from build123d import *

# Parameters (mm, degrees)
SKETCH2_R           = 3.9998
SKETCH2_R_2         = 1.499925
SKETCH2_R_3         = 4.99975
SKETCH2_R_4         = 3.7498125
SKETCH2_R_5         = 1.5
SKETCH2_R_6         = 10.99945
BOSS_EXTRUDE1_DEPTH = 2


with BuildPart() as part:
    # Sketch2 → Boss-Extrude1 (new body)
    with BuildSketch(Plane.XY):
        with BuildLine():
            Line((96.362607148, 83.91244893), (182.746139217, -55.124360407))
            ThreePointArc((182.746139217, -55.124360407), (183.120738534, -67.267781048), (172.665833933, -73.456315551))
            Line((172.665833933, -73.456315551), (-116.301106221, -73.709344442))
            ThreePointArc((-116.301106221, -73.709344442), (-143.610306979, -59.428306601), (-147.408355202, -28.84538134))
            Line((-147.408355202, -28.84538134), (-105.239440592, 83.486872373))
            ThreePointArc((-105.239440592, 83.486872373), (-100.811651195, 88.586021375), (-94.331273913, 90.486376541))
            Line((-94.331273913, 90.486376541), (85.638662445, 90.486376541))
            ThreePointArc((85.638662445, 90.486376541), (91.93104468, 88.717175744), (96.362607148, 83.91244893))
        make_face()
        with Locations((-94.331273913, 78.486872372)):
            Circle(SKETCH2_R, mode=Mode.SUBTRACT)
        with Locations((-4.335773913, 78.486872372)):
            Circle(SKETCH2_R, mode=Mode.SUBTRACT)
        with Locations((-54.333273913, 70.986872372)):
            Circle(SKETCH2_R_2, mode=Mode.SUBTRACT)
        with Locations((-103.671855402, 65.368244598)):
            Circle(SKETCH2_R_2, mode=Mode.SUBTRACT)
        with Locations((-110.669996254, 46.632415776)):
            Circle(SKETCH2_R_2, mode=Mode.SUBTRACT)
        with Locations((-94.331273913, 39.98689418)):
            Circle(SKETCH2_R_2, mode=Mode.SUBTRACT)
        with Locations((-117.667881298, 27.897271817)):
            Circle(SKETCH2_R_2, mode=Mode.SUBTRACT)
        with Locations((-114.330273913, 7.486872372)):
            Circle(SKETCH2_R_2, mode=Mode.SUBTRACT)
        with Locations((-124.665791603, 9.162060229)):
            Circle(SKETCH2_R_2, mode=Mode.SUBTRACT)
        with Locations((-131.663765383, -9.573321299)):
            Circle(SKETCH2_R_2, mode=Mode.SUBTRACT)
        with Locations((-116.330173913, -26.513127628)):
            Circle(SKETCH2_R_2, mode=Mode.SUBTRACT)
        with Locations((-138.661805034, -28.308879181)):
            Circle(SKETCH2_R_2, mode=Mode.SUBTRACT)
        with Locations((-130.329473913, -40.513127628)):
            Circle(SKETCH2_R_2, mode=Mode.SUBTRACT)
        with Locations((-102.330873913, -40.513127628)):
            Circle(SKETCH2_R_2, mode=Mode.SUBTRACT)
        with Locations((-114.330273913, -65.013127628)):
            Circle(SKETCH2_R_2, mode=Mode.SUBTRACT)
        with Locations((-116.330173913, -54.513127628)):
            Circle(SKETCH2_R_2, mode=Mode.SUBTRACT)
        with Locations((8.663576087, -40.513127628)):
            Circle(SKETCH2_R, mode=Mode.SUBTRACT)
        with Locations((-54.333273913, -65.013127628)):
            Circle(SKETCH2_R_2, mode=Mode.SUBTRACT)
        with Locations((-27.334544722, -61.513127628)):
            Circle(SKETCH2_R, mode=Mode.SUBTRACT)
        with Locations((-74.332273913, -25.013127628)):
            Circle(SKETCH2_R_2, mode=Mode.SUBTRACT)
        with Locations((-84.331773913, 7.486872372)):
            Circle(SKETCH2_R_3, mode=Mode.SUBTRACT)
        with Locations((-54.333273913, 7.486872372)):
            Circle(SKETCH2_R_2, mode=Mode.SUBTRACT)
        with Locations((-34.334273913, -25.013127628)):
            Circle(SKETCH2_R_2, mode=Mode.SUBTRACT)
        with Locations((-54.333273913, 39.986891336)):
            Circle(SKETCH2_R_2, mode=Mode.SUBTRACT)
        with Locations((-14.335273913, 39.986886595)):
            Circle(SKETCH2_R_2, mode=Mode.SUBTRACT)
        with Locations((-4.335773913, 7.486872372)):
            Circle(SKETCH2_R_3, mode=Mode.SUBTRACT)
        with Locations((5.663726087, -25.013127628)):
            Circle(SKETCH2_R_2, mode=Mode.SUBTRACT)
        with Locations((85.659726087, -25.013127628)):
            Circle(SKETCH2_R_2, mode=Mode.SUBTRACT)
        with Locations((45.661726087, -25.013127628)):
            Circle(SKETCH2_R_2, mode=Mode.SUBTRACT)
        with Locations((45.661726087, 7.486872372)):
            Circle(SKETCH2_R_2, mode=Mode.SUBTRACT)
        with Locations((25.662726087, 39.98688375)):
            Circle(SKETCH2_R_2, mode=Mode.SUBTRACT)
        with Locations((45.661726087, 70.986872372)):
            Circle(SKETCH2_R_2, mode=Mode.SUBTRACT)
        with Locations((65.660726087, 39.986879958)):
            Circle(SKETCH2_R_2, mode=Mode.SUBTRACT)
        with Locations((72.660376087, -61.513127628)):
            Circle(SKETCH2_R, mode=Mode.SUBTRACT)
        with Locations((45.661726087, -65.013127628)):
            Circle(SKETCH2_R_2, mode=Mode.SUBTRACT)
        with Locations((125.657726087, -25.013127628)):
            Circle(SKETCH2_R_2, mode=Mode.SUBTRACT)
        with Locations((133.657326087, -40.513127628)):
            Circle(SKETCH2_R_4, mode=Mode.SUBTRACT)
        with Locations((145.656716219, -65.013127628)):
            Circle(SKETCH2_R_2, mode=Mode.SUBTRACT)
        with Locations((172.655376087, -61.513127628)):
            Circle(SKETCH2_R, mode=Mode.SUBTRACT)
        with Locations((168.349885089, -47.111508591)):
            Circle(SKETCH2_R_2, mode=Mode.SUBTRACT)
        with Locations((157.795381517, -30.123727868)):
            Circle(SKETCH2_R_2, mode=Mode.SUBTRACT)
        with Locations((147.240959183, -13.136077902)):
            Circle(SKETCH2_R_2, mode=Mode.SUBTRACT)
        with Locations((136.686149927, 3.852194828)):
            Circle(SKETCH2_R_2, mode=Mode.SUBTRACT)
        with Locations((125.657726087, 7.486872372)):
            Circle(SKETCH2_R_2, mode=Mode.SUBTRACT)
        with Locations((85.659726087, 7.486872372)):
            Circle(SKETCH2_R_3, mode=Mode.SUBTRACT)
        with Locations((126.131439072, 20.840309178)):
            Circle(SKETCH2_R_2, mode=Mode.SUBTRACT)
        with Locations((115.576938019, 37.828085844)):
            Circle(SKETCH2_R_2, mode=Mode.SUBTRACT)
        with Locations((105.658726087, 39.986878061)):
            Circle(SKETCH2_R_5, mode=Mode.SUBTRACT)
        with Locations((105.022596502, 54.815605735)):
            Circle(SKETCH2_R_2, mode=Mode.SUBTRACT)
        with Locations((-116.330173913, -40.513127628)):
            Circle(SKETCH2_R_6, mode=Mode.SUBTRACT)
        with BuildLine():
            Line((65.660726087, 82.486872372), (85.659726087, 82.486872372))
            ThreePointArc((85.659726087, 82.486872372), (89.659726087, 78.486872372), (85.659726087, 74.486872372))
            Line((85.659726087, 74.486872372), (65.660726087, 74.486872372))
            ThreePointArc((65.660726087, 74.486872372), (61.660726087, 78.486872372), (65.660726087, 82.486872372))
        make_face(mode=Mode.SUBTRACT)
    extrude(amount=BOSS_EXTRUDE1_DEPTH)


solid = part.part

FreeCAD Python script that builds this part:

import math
import FreeCAD as App
import Part
import Sketcher

V = App.Vector
Q = App.Units.Quantity

doc = App.newDocument("Part")
params = doc.addObject("Spreadsheet::Sheet", "Params")
for row, (alias, value) in enumerate([
    ("sketch1_diameter", "3 mm"),
    ("sketch1_radius", "4 mm"),
    ("pad1_length", "2 mm"),
], start=1):
    params.set(f"A{row}", alias)
    params.set(f"B{row}", "=" + value)
    params.setAlias(f"B{row}", alias)

body = doc.addObject("PartDesign::Body", "Body")

# Sketch on XY plane
sketch1 = body.newObject("Sketcher::SketchObject", "Sketch")
sketch1.AttachmentSupport = (doc.getObject("XY_Plane"), [""])
sketch1.MapMode = "FlatFace"
sketch1.addGeometry([
    Part.LineSegment(V(182.7, -55.1, 0), V(96.4, 83.9, 0)),  # 0
    Part.ArcOfCircle(Part.Circle(V(85.7, 78.5, 0), V(0, 0, 1), 12), math.radians(27), math.radians(90)),  # 1
    Part.LineSegment(V(85.6, 90.5, 0), V(-94.3, 90.5, 0)),  # 2
    Part.ArcOfCircle(Part.Circle(V(-94.3, 78.5, 0), V(0, 0, 1), 12), math.radians(90), math.radians(155)),  # 3
    Part.LineSegment(V(-105.2, 83.5, 0), V(-147.4, -28.8, 0)),  # 4
    Part.ArcOfCircle(Part.Circle(V(-116.3, -40.5, 0), V(0, 0, 1), 33.2), math.radians(159), math.radians(270)),  # 5
    Part.LineSegment(V(-116.3, -73.7, 0), V(172.7, -73.5, 0)),  # 6
    Part.ArcOfCircle(Part.Circle(V(172.7, -61.5, 0), V(0, 0, 1), 11.9), math.radians(-90), math.radians(32)),  # 7
    Part.Circle(V(172.7, -61.5, 0), V(0, 0, 1), 4),  # 8
    Part.Circle(V(145.7, -65, 0), V(0, 0, 1), 1.5),  # 9
    Part.Circle(V(168.3, -47.1, 0), V(0, 0, 1), 1.5),  # 10
    Part.Circle(V(157.8, -30.1, 0), V(0, 0, 1), 1.5),  # 11
    Part.Circle(V(133.7, -40.5, 0), V(0, 0, 1), 3.7),  # 12
    Part.Circle(V(72.7, -61.5, 0), V(0, 0, 1), 4),  # 13
    Part.Circle(V(45.7, -65, 0), V(0, 0, 1), 1.5),  # 14
    Part.Circle(V(147.2, -13.1, 0), V(0, 0, 1), 1.5),  # 15
    Part.Circle(V(125.7, -25, 0), V(0, 0, 1), 1.5),  # 16
    Part.Circle(V(136.7, 3.9, 0), V(0, 0, 1), 1.5),  # 17
    Part.Circle(V(125.7, 7.5, 0), V(0, 0, 1), 1.5),  # 18
    Part.Circle(V(85.7, -25, 0), V(0, 0, 1), 1.5),  # 19
    Part.Circle(V(45.7, -25, 0), V(0, 0, 1), 1.5),  # 20
    Part.Circle(V(85.7, 7.5, 0), V(0, 0, 1), 5),  # 21
    Part.Circle(V(45.7, 7.5, 0), V(0, 0, 1), 1.5),  # 22
    Part.Circle(V(-27.3, -61.5, 0), V(0, 0, 1), 4),  # 23
    Part.Circle(V(-54.3, -65, 0), V(0, 0, 1), 1.5),  # 24
    Part.Circle(V(8.7, -40.5, 0), V(0, 0, 1), 4),  # 25
    Part.Circle(V(-114.3, -65, 0), V(0, 0, 1), 1.5),  # 26
    Part.Circle(V(-116.3, -54.5, 0), V(0, 0, 1), 1.5),  # 27
    Part.Circle(V(-102.3, -40.5, 0), V(0, 0, 1), 1.5),  # 28
    Part.Circle(V(-116.3, -40.5, 0), V(0, 0, 1), 11),  # 29
    Part.Circle(V(-130.3, -40.5, 0), V(0, 0, 1), 1.5),  # 30
    Part.Circle(V(5.7, -25, 0), V(0, 0, 1), 1.5),  # 31
    Part.Circle(V(-34.3, -25, 0), V(0, 0, 1), 1.5),  # 32
    Part.Circle(V(-4.3, 7.5, 0), V(0, 0, 1), 5),  # 33
    Part.Circle(V(-54.3, 7.5, 0), V(0, 0, 1), 1.5),  # 34
    Part.Circle(V(-74.3, -25, 0), V(0, 0, 1), 1.5),  # 35
    Part.Circle(V(-116.3, -26.5, 0), V(0, 0, 1), 1.5),  # 36
    Part.Circle(V(-138.7, -28.3, 0), V(0, 0, 1), 1.5),  # 37
    Part.Circle(V(-84.3, 7.5, 0), V(0, 0, 1), 5),  # 38
    Part.Circle(V(-131.7, -9.6, 0), V(0, 0, 1), 1.5),  # 39
    Part.Circle(V(-114.3, 7.5, 0), V(0, 0, 1), 1.5),  # 40
    Part.Circle(V(126.1, 20.8, 0), V(0, 0, 1), 1.5),  # 41
    Part.Circle(V(115.6, 37.8, 0), V(0, 0, 1), 1.5),  # 42
    Part.Circle(V(105.7, 40, 0), V(0, 0, 1), 1.5),  # 43
    Part.Circle(V(65.7, 40, 0), V(0, 0, 1), 1.5),  # 44
    Part.Circle(V(25.7, 40, 0), V(0, 0, 1), 1.5),  # 45
    Part.Circle(V(105, 54.8, 0), V(0, 0, 1), 1.5),  # 46
    Part.LineSegment(V(65.7, 82.5, 0), V(85.7, 82.5, 0)),  # 47
    Part.ArcOfCircle(Part.Circle(V(85.7, 78.5, 0), V(0, 0, 1), 4), math.radians(-90), math.radians(90)),  # 48
    Part.LineSegment(V(85.7, 74.5, 0), V(65.7, 74.5, 0)),  # 49
    Part.ArcOfCircle(Part.Circle(V(65.7, 78.5, 0), V(0, 0, 1), 4), math.radians(90), math.radians(270)),  # 50
    Part.Circle(V(45.7, 71, 0), V(0, 0, 1), 1.5),  # 51
    Part.Circle(V(-14.3, 40, 0), V(0, 0, 1), 1.5),  # 52
    Part.Circle(V(-54.3, 40, 0), V(0, 0, 1), 1.5),  # 53
    Part.Circle(V(-124.7, 9.2, 0), V(0, 0, 1), 1.5),  # 54
    Part.Circle(V(-94.3, 40, 0), V(0, 0, 1), 1.5),  # 55
    Part.Circle(V(-117.7, 27.9, 0), V(0, 0, 1), 1.5),  # 56
    Part.Circle(V(-4.3, 78.5, 0), V(0, 0, 1), 4),  # 57
    Part.Circle(V(-54.3, 71, 0), V(0, 0, 1), 1.5),  # 58
    Part.Circle(V(-110.7, 46.6, 0), V(0, 0, 1), 1.5),  # 59
    Part.Circle(V(-94.3, 78.5, 0), V(0, 0, 1), 4),  # 60
    Part.Circle(V(-103.7, 65.4, 0), V(0, 0, 1), 1.5),  # 61
], False)
sketch1.addConstraint([
    Sketcher.Constraint("Coincident", 0, 2, 1, 1),
    Sketcher.Constraint("Coincident", 1, 2, 2, 1),
    Sketcher.Constraint("Tangent", 2, 2, 3, 1),
    Sketcher.Constraint("Coincident", 3, 2, 4, 1),
    Sketcher.Constraint("Coincident", 4, 2, 5, 1),
    Sketcher.Constraint("Tangent", 5, 2, 6, 1),
    Sketcher.Constraint("Tangent", 6, 2, 7, 1),
    Sketcher.Constraint("Coincident", 7, 2, 0, 1),
    Sketcher.Constraint("Tangent", 47, 2, 48, 2),
    Sketcher.Constraint("Tangent", 48, 1, 49, 1),
    Sketcher.Constraint("Tangent", 49, 2, 50, 2),
    Sketcher.Constraint("Tangent", 50, 1, 47, 1),
    Sketcher.Constraint("Horizontal", 2),
    Sketcher.Constraint("Horizontal", 47),
    Sketcher.Constraint("Horizontal", 49),
    Sketcher.Constraint("Coincident", 8, 3, 7, 3),
    Sketcher.Constraint("Coincident", 29, 3, 5, 3),
    Sketcher.Constraint("Coincident", 48, 3, 1, 3),
    Sketcher.Constraint("Coincident", 60, 3, 3, 3),
    Sketcher.Constraint("Equal", 9, 10),
    Sketcher.Constraint("Equal", 10, 11),
    Sketcher.Constraint("Equal", 8, 13),
    Sketcher.Constraint("Equal", 11, 14),
    Sketcher.Constraint("Equal", 14, 15),
    Sketcher.Constraint("Equal", 15, 16),
    Sketcher.Constraint("Equal", 16, 17),
    Sketcher.Constraint("Equal", 17, 18),
    Sketcher.Constraint("Equal", 18, 19),
    Sketcher.Constraint("Equal", 19, 20),
    Sketcher.Constraint("Equal", 20, 22),
    Sketcher.Constraint("Equal", 13, 23),
    Sketcher.Constraint("Equal", 22, 24),
    Sketcher.Constraint("Equal", 23, 25),
    Sketcher.Constraint("Equal", 24, 26),
    Sketcher.Constraint("Equal", 26, 27),
    Sketcher.Constraint("Equal", 27, 28),
    Sketcher.Constraint("Equal", 28, 30),
    Sketcher.Constraint("Equal", 30, 31),
    Sketcher.Constraint("Equal", 31, 32),
    Sketcher.Constraint("Equal", 21, 33),
    Sketcher.Constraint("Equal", 32, 34),
    Sketcher.Constraint("Equal", 34, 35),
    Sketcher.Constraint("Equal", 35, 36),
    Sketcher.Constraint("Equal", 36, 37),
    Sketcher.Constraint("Equal", 33, 38),
    Sketcher.Constraint("Equal", 37, 39),
    Sketcher.Constraint("Equal", 39, 40),
    Sketcher.Constraint("Equal", 40, 41),
    Sketcher.Constraint("Equal", 41, 42),
    Sketcher.Constraint("Equal", 42, 44),
    Sketcher.Constraint("Equal", 44, 45),
    Sketcher.Constraint("Equal", 45, 46),
    Sketcher.Constraint("Equal", 46, 51),
    Sketcher.Constraint("Equal", 51, 52),
    Sketcher.Constraint("Equal", 52, 53),
    Sketcher.Constraint("Equal", 53, 54),
    Sketcher.Constraint("Equal", 54, 55),
    Sketcher.Constraint("Equal", 55, 56),
    Sketcher.Constraint("Equal", 25, 57),
    Sketcher.Constraint("Equal", 56, 58),
    Sketcher.Constraint("Equal", 58, 59),
    Sketcher.Constraint("Equal", 57, 60),
    Sketcher.Constraint("Equal", 59, 61),
    Sketcher.Constraint("Horizontal", 1, 3, 3, 3),
    Sketcher.Constraint("Horizontal", 5, 3, 12, 3),
    Sketcher.Constraint("Horizontal", 8, 3, 13, 3),
    Sketcher.Constraint("Horizontal", 9, 3, 14, 3),
    Sketcher.Constraint("Horizontal", 16, 3, 19, 3),
    Sketcher.Constraint("Horizontal", 19, 3, 20, 3),
    Sketcher.Constraint("Horizontal", 18, 3, 21, 3),
    Sketcher.Constraint("Horizontal", 21, 3, 22, 3),
    Sketcher.Constraint("Horizontal", 13, 3, 23, 3),
    Sketcher.Constraint("Horizontal", 14, 3, 24, 3),
    Sketcher.Constraint("Horizontal", 12, 3, 25, 3),
    Sketcher.Constraint("Horizontal", 24, 3, 26, 3),
    Sketcher.Constraint("Horizontal", 25, 3, 28, 3),
    Sketcher.Constraint("Horizontal", 29, 3, 30, 3),
    Sketcher.Constraint("Horizontal", 20, 3, 31, 3),
    Sketcher.Constraint("Horizontal", 31, 3, 32, 3),
    Sketcher.Constraint("Horizontal", 22, 3, 33, 3),
    Sketcher.Constraint("Horizontal", 33, 3, 34, 3),
    Sketcher.Constraint("Horizontal", 32, 3, 35, 3),
    Sketcher.Constraint("Horizontal", 34, 3, 38, 3),
    Sketcher.Constraint("Horizontal", 38, 3, 40, 3),
    Sketcher.Constraint("Horizontal", 43, 3, 44, 3),
    Sketcher.Constraint("Horizontal", 50, 3, 57, 3),
    Sketcher.Constraint("Horizontal", 51, 3, 58, 3),
    Sketcher.Constraint("Vertical", 16, 3, 18, 3),
    Sketcher.Constraint("Vertical", 1, 3, 19, 3),
    Sketcher.Constraint("Vertical", 14, 3, 20, 3),
    Sketcher.Constraint("Vertical", 19, 3, 21, 3),
    Sketcher.Constraint("Vertical", 20, 3, 22, 3),
    Sketcher.Constraint("Vertical", 5, 3, 27, 3),
    Sketcher.Constraint("Vertical", 24, 3, 34, 3),
    Sketcher.Constraint("Vertical", 29, 3, 36, 3),
    Sketcher.Constraint("Vertical", 26, 3, 40, 3),
    Sketcher.Constraint("Vertical", 44, 3, 50, 3),
    Sketcher.Constraint("Vertical", 22, 3, 51, 3),
    Sketcher.Constraint("Vertical", 34, 3, 53, 3),
    Sketcher.Constraint("Vertical", 3, 3, 55, 3),
    Sketcher.Constraint("Vertical", 33, 3, 57, 3),
    Sketcher.Constraint("Vertical", 53, 3, 58, 3),
    Sketcher.Constraint("Diameter", 43, Q("3 mm")),
    Sketcher.Constraint("Radius", 48, Q("4 mm")),
    Sketcher.Constraint("Diameter", 8, Q("7.9996 mm")),
    Sketcher.Constraint("Diameter", 21, Q("9.9995 mm")),
    Sketcher.Constraint("Diameter", 29, Q("21.9989 mm")),
    Sketcher.Constraint("Diameter", 9, Q("2.99985 mm")),
    Sketcher.Constraint("DistanceX", 47, 1, 47, 2, Q("19.999 mm")),
    Sketcher.Constraint("Radius", 5, Q("33.19623 mm")),
    Sketcher.Constraint("Diameter", 12, Q("7.499625 mm")),
    Sketcher.Constraint("Radius", 1, Q("11.999523 mm")),
    Sketcher.Constraint("Radius", 7, Q("11.943193 mm")),
    Sketcher.Constraint("Distance", 0, Q("163.68674 mm")),
    Sketcher.Constraint("Distance", 4, Q("119.986468 mm")),
    Sketcher.Constraint("Distance", 6, Q("288.967051 mm")),
    Sketcher.Constraint("DistanceX", 2, 2, 2, 1, Q("179.969936 mm")),
    Sketcher.Constraint("DistanceY", 10, 3, -1, 1, Q("47.111509 mm")),
    Sketcher.Constraint("DistanceX", -1, 1, 11, 3, Q("157.795382 mm")),
    Sketcher.Constraint("DistanceX", -1, 1, 15, 3, Q("147.240959 mm")),
    Sketcher.Constraint("DistanceX", -1, 1, 17, 3, Q("136.68615 mm")),
    Sketcher.Constraint("DistanceY", 37, 3, -1, 1, Q("28.308879 mm")),
    Sketcher.Constraint("DistanceY", 39, 3, -1, 1, Q("9.573321 mm")),
    Sketcher.Constraint("DistanceX", -1, 1, 41, 3, Q("126.131439 mm")),
    Sketcher.Constraint("DistanceY", -1, 1, 41, 3, Q("20.840309 mm")),
    Sketcher.Constraint("DistanceX", -1, 1, 42, 3, Q("115.576938 mm")),
    Sketcher.Constraint("DistanceY", -1, 1, 43, 3, Q("39.986878 mm")),
    Sketcher.Constraint("DistanceY", -1, 1, 53, 3, Q("39.986891 mm")),
    Sketcher.Constraint("DistanceX", 54, 3, -1, 1, Q("124.665792 mm")),
    Sketcher.Constraint("DistanceY", -1, 1, 54, 3, Q("9.16206 mm")),
    Sketcher.Constraint("DistanceX", 56, 3, -1, 1, Q("117.667881 mm")),
    Sketcher.Constraint("DistanceY", -1, 1, 56, 3, Q("27.897272 mm")),
    Sketcher.Constraint("DistanceY", -1, 1, 0, 2, Q("83.912449 mm")),
    Sketcher.Constraint("DistanceX", 3, 2, -1, 1, Q("105.239441 mm")),
    Sketcher.Constraint("DistanceY", 4, 2, -1, 1, Q("28.845381 mm")),
    Sketcher.Constraint("DistanceX", -1, 1, 7, 2, Q("182.746139 mm")),
    Sketcher.Constraint("DistanceY", 7, 2, -1, 1, Q("55.12436 mm")),
    Sketcher.Constraint("DistanceX", -1, 1, 1, 3, Q("85.659726 mm")),
    Sketcher.Constraint("DistanceX", 3, 3, -1, 1, Q("94.331274 mm")),
    Sketcher.Constraint("DistanceX", 5, 3, -1, 1, Q("116.330174 mm")),
    Sketcher.Constraint("DistanceX", -1, 1, 9, 3, Q("145.656716 mm")),
    Sketcher.Constraint("DistanceY", 9, 3, -1, 1, Q("65.013128 mm")),
    Sketcher.Constraint("DistanceX", -1, 1, 10, 3, Q("168.349885 mm")),
    Sketcher.Constraint("DistanceY", 11, 3, -1, 1, Q("30.123728 mm")),
    Sketcher.Constraint("DistanceX", -1, 1, 12, 3, Q("133.657326 mm")),
    Sketcher.Constraint("DistanceX", -1, 1, 13, 3, Q("72.660376 mm")),
    Sketcher.Constraint("DistanceX", -1, 1, 14, 3, Q("45.661726 mm")),
    Sketcher.Constraint("DistanceY", 15, 3, -1, 1, Q("13.136078 mm")),
    Sketcher.Constraint("DistanceX", -1, 1, 16, 3, Q("125.657726 mm")),
    Sketcher.Constraint("DistanceY", 16, 3, -1, 1, Q("25.013128 mm")),
    Sketcher.Constraint("DistanceY", -1, 1, 17, 3, Q("3.852195 mm")),
    Sketcher.Constraint("DistanceY", -1, 1, 18, 3, Q("7.486872 mm")),
    Sketcher.Constraint("DistanceX", 23, 3, -1, 1, Q("27.334545 mm")),
    Sketcher.Constraint("DistanceX", 24, 3, -1, 1, Q("54.333274 mm")),
    Sketcher.Constraint("DistanceX", -1, 1, 25, 3, Q("8.663576 mm")),
    Sketcher.Constraint("DistanceX", 26, 3, -1, 1, Q("114.330274 mm")),
    Sketcher.Constraint("DistanceY", 27, 3, -1, 1, Q("54.513128 mm")),
    Sketcher.Constraint("DistanceX", 28, 3, -1, 1, Q("102.330874 mm")),
    Sketcher.Constraint("DistanceX", 30, 3, -1, 1, Q("130.329474 mm")),
    Sketcher.Constraint("DistanceX", -1, 1, 31, 3, Q("5.663726 mm")),
    Sketcher.Constraint("DistanceX", 32, 3, -1, 1, Q("34.334274 mm")),
    Sketcher.Constraint("DistanceX", 33, 3, -1, 1, Q("4.335774 mm")),
    Sketcher.Constraint("DistanceX", 35, 3, -1, 1, Q("74.332274 mm")),
    Sketcher.Constraint("DistanceY", 36, 3, -1, 1, Q("26.513128 mm")),
    Sketcher.Constraint("DistanceX", 37, 3, -1, 1, Q("138.661805 mm")),
    Sketcher.Constraint("DistanceX", 38, 3, -1, 1, Q("84.331774 mm")),
    Sketcher.Constraint("DistanceX", 39, 3, -1, 1, Q("131.663765 mm")),
    Sketcher.Constraint("DistanceY", -1, 1, 42, 3, Q("37.828086 mm")),
    Sketcher.Constraint("DistanceX", -1, 1, 43, 3, Q("105.658726 mm")),
    Sketcher.Constraint("DistanceX", -1, 1, 45, 3, Q("25.662726 mm")),
    Sketcher.Constraint("DistanceY", -1, 1, 45, 3, Q("39.986884 mm")),
    Sketcher.Constraint("DistanceX", -1, 1, 46, 3, Q("105.022597 mm")),
    Sketcher.Constraint("DistanceY", -1, 1, 46, 3, Q("54.815606 mm")),
    Sketcher.Constraint("DistanceY", -1, 1, 51, 3, Q("70.986872 mm")),
    Sketcher.Constraint("DistanceX", 52, 3, -1, 1, Q("14.335274 mm")),
    Sketcher.Constraint("DistanceY", -1, 1, 52, 3, Q("39.986887 mm")),
    Sketcher.Constraint("DistanceY", -1, 1, 55, 3, Q("39.986894 mm")),
    Sketcher.Constraint("DistanceX", 59, 3, -1, 1, Q("110.669996 mm")),
    Sketcher.Constraint("DistanceY", -1, 1, 59, 3, Q("46.632416 mm")),
    Sketcher.Constraint("DistanceX", 61, 3, -1, 1, Q("103.671855 mm")),
    Sketcher.Constraint("DistanceY", -1, 1, 61, 3, Q("65.368245 mm")),
])
sketch1.setExpression("Constraints[102]", "Params.sketch1_diameter")
sketch1.setExpression("Constraints[103]", "Params.sketch1_radius")
pad1 = body.newObject("PartDesign::Pad", "Pad")
pad1.Profile = sketch1
pad1.setExpression("Length", "Params.pad1_length")

doc.recompute()
